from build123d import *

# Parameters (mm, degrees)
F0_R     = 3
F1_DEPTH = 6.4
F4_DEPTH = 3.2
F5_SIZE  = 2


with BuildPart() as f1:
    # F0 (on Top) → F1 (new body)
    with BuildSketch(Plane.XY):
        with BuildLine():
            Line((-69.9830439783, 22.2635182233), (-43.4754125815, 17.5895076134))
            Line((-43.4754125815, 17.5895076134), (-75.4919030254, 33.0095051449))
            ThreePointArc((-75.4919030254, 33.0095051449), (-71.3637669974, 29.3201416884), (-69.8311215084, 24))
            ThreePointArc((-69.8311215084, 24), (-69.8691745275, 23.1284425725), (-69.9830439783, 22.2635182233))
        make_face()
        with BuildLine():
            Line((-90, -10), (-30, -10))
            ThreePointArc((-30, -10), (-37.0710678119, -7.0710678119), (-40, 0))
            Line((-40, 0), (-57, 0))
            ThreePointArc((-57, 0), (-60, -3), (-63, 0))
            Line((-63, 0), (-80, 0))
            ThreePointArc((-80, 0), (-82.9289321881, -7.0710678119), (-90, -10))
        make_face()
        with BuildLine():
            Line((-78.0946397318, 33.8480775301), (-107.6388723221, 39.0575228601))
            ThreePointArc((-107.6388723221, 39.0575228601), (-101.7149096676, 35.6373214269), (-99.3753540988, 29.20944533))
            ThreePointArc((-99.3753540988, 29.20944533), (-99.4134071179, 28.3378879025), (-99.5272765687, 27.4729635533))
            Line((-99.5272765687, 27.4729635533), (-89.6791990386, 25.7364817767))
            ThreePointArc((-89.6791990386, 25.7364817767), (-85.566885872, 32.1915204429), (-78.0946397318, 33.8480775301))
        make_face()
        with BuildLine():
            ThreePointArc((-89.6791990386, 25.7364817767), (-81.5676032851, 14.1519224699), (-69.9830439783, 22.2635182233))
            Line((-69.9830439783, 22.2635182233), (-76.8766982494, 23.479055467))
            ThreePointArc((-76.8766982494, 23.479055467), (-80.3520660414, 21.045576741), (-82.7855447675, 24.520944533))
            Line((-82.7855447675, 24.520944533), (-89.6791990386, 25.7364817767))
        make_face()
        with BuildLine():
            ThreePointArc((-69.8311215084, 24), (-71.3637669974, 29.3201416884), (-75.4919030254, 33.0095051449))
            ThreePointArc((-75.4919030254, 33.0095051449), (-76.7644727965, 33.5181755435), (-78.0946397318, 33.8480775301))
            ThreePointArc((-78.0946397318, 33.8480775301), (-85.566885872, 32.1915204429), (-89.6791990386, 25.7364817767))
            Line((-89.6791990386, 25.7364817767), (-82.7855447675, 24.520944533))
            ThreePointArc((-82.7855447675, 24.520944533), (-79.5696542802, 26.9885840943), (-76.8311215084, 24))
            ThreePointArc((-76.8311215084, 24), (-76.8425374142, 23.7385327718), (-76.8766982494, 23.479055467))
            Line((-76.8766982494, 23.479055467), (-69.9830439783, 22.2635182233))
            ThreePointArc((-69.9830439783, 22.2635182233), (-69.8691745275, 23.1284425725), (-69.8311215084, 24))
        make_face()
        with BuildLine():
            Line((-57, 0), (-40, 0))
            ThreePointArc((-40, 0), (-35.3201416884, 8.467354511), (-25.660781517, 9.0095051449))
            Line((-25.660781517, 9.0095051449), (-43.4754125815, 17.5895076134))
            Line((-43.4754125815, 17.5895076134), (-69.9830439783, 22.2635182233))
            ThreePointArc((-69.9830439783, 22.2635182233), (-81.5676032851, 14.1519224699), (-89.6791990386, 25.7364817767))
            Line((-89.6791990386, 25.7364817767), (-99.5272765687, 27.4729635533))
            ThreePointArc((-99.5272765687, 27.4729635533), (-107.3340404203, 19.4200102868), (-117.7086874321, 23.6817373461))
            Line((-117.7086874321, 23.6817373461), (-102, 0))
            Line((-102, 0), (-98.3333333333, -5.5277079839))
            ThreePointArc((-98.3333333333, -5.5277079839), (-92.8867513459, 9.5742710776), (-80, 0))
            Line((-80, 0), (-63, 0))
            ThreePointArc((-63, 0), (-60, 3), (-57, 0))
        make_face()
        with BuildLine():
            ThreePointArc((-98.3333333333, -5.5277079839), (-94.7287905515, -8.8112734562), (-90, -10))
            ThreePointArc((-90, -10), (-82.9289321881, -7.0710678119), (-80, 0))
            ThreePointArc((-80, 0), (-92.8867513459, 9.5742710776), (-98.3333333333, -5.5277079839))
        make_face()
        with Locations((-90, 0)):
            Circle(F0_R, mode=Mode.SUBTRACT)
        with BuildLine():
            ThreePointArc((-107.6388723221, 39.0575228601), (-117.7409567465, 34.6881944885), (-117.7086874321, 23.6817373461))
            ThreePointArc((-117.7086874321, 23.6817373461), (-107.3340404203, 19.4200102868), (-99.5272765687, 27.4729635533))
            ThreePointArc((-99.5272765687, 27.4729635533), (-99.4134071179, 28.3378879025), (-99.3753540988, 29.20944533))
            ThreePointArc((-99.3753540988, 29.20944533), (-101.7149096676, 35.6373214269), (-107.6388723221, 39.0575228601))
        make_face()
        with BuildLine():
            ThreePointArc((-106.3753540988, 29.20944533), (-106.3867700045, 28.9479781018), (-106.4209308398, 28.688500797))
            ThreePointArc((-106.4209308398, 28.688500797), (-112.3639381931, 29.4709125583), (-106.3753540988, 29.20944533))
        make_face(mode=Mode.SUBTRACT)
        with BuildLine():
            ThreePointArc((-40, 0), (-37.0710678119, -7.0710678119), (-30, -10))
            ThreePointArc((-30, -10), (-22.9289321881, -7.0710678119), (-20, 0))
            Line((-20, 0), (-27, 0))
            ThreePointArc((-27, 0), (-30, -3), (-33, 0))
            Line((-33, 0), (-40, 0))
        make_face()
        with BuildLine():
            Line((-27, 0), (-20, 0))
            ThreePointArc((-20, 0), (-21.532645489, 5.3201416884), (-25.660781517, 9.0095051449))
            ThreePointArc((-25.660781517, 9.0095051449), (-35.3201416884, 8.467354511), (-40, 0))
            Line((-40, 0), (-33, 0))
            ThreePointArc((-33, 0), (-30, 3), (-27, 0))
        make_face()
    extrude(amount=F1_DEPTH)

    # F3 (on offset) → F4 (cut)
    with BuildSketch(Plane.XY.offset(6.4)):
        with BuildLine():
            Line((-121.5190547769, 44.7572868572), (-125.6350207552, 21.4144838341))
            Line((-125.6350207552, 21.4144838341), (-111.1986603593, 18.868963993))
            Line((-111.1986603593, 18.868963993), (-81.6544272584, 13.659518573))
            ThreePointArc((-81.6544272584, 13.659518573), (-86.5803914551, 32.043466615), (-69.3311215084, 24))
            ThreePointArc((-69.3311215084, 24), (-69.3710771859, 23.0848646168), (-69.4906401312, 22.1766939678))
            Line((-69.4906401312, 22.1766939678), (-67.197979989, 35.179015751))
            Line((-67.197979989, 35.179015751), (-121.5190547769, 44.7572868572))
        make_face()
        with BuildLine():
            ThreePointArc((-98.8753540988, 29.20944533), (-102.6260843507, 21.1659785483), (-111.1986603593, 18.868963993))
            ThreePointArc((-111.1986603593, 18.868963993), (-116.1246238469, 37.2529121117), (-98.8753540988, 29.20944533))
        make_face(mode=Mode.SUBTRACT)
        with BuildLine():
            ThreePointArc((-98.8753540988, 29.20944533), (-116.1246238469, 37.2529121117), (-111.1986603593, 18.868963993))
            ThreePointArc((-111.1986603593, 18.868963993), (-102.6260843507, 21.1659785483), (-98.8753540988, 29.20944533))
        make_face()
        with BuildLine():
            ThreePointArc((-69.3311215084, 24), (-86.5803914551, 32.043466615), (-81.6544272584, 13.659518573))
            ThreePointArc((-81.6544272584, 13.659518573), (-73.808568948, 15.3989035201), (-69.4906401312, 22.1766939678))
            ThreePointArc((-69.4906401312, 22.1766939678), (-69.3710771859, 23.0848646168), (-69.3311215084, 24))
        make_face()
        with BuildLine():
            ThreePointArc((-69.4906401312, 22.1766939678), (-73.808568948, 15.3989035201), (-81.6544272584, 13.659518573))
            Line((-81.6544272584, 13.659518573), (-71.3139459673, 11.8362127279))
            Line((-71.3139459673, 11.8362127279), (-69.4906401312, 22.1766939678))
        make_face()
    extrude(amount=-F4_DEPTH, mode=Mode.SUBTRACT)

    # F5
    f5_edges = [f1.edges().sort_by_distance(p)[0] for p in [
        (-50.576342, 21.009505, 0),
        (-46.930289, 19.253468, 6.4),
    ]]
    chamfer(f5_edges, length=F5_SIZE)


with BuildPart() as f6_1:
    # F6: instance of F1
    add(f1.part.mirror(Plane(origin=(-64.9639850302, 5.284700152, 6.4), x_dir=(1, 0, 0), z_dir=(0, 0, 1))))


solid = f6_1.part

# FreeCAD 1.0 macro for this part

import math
import FreeCAD as App
import Part
import Sketcher
from FreeCAD import Vector
Q = App.Units.Quantity


def edges_at(feature, points):
    """Names of the edges that pass closest to the given points."""
    edges = feature.Shape.Edges
    near = lambda p: min(range(len(edges)), key=lambda i: edges[i].distToShape(Part.Vertex(*p))[0])
    return sorted({f"Edge{near(p) + 1}" for p in points})


def add_polygon(sketch, points):
    """Adds a closed chain of lines whose ends are joined by coincident constraints."""
    first, n = sketch.GeometryCount, len(points)
    for a, b in zip(points, points[1:] + points[:1]):
        sketch.addGeometry(Part.LineSegment(App.Vector(*a, 0), App.Vector(*b, 0)), False)
    for i in range(n):
        sketch.addConstraint(Sketcher.Constraint("Coincident", first + i, 2, first + (i + 1) % n, 1))

doc = App.newDocument("Part")
params = doc.addObject("Spreadsheet::Sheet", "Params")
for row, (alias, value) in enumerate([
    ("sketch1_diameter", "6 mm"),
    ("sketch1_radius", "10 mm"),
    ("sketch1_width", "60 mm"),
    ("sketch1_length", "30 mm"),
    ("pad1_length", "6.4 mm"),
    ("sketch2_length", "30.000001 mm"),
    ("sketch2_length2", "10.5 mm"),
    ("pocket1_length", "3.2 mm"),
    ("chamfer_size", "2 mm"),
], start=1):
    params.set(f"A{row}", alias)
    params.set(f"B{row}", "=" + value)
    params.setAlias(f"B{row}", alias)

body = doc.addObject("PartDesign::Body", "Body")

# Sketch on XY plane
sketch1 = body.newObject("Sketcher::SketchObject", "Sketch")
sketch1.AttachmentSupport = (doc.getObject("XY_Plane"), [""])
sketch1.MapMode = "FlatFace"
sketch1.addGeometry([
    Part.LineSegment(Vector(-25.660782, 9.009505, 0), Vector(-43.475413, 17.589508, 0)),  # 0
    Part.LineSegment(Vector(-43.475413, 17.589508, 0), Vector(-75.491903, 33.009505, 0)),  # 1
    Part.ArcOfCircle(Part.Circle(Vector(-79.831122, 24, 0), Vector(0, 0, 1), 10), math.radians(64.283291), math.radians(80)),  # 2
    Part.LineSegment(Vector(-78.09464, 33.848078, 0), Vector(-107.638872, 39.057523, 0)),  # 3
    Part.ArcOfCircle(Part.Circle(Vector(-109.375354, 29.209445, 0), Vector(0, 0, 1), 10), math.radians(80), math.radians(213.55731)),  # 4
    Part.LineSegment(Vector(-117.708687, 23.681737, 0), Vector(-102, 0, 0)),  # 5
    Part.LineSegment(Vector(-102, 0, 0), Vector(-98.333333, -5.527708, 0)),  # 6
    Part.ArcOfCircle(Part.Circle(Vector(-90, 0, 0), Vector(0, 0, 1), 10), math.radians(-146.44269), math.radians(-90)),  # 7
    Part.LineSegment(Vector(-90, -10, 0), Vector(-30, -10, 0)),  # 8
    Part.ArcOfCircle(Part.Circle(Vector(-30, 0, 0), Vector(0, 0, 1), 10), math.radians(-90), math.radians(0)),  # 9
    Part.ArcOfCircle(Part.Circle(Vector(-30, 0, 0), Vector(0, 0, 1), 10), math.radians(0), math.radians(64.283291)),  # 10
    Part.Circle(Vector(-30, 0, 0), Vector(0, 0, 1), 3),  # 11
    Part.Circle(Vector(-90, 0, 0), Vector(0, 0, 1), 3),  # 12
    Part.Circle(Vector(-60, 0, 0), Vector(0, 0, 1), 3),  # 13
    Part.ArcOfCircle(Part.Circle(Vector(-109.375354, 29.209445, 0), Vector(0, 0, 1), 3), math.radians(0), math.radians(350)),  # 14
    Part.ArcOfCircle(Part.Circle(Vector(-109.375354, 29.209445, 0), Vector(0, 0, 1), 3), math.radians(-10), math.radians(0)),  # 15
    Part.ArcOfCircle(Part.Circle(Vector(-79.831122, 24, 0), Vector(0, 0, 1), 3), math.radians(0), math.radians(170)),  # 16
    Part.ArcOfCircle(Part.Circle(Vector(-79.831122, 24, 0), Vector(0, 0, 1), 3), math.radians(-10), math.radians(0)),  # 17
    Part.ArcOfCircle(Part.Circle(Vector(-79.831122, 24, 0), Vector(0, 0, 1), 3), math.radians(170), math.radians(350)),  # 18
], False)
sketch1.addConstraint([
    Sketcher.Constraint("Coincident", 0, 2, 1, 1),
    Sketcher.Constraint("Tangent", 1, 2, 2, 1),
    Sketcher.Constraint("Tangent", 2, 2, 3, 1),
    Sketcher.Constraint("Tangent", 3, 2, 4, 1),
    Sketcher.Constraint("Tangent", 4, 2, 5, 1),
    Sketcher.Constraint("Coincident", 5, 2, 6, 1),
    Sketcher.Constraint("Tangent", 6, 2, 7, 1),
    Sketcher.Constraint("Tangent", 7, 2, 8, 1),
    Sketcher.Constraint("Tangent", 8, 2, 9, 1),
    Sketcher.Constraint("Tangent", 9, 2, 10, 1),
    Sketcher.Constraint("Tangent", 10, 2, 0, 1),
    Sketcher.Constraint("Tangent", 14, 1, 15, 2),
    Sketcher.Constraint("Coincident", 15, 1, 14, 2),
    Sketcher.Constraint("Tangent", 16, 1, 17, 2),
    Sketcher.Constraint("Tangent", 17, 1, 18, 2),
    Sketcher.Constraint("Tangent", 18, 1, 16, 2),
    Sketcher.Constraint("Horizontal", 8),
    Sketcher.Constraint("Coincident", 11, 3, 9, 3),
    Sketcher.Constraint("Coincident", 12, 3, 7, 3),
    Sketcher.Constraint("Coincident", 14, 3, 4, 3),
    Sketcher.Constraint("Coincident", 16, 3, 2, 3),
    Sketcher.Constraint("Equal", 2, 4),
    Sketcher.Constraint("Equal", 4, 7),
    Sketcher.Constraint("Equal", 7, 9),
    Sketcher.Constraint("Equal", 9, 10),
    Sketcher.Constraint("Equal", 11, 12),
    Sketcher.Constraint("Equal", 12, 13),
    Sketcher.Constraint("Equal", 13, 14),
    Sketcher.Constraint("Equal", 15, 16),
    Sketcher.Constraint("PointOnObject", 7, 3, -1),
    Sketcher.Constraint("PointOnObject", 13, 3, -1),
    Sketcher.Constraint("PointOnObject", 5, 2, -1),
    Sketcher.Constraint("PointOnObject", 9, 2, -1),
    Sketcher.Constraint("Parallel", 0, 1),
    Sketcher.Constraint("Parallel", 5, 6),
    Sketcher.Constraint("Horizontal", 15, 3, 14, 1),
    Sketcher.Constraint("Horizontal", 18, 3, 16, 1),
    Sketcher.Constraint("Diameter", 11, 6.0),
    Sketcher.Constraint("Radius", 2, 10.0),
    Sketcher.Constraint("DistanceX", 8, 1, 8, 2, 60.0),
    Sketcher.Constraint("Angle", 3, Q("170 deg")),
    Sketcher.Constraint("Distance", 3, 30.0),
    Sketcher.Constraint("DistanceY", -1, 1, 2, 3, 24.0),
    Sketcher.Constraint("DistanceX", 7, 3, -1, 1, 90.0),
    Sketcher.Constraint("DistanceX", 13, 3, -1, 1, 60.0),
    Sketcher.Constraint("DistanceX", 5, 2, -1, 1, 102.0),
    Sketcher.Constraint("DistanceY", -1, 1, 15, 1, 28.688501),
    Sketcher.Constraint("DistanceX", 17, 1, -1, 1, 76.876698),
    Sketcher.Constraint("Distance", 0, 19.773152),
    Sketcher.Constraint("DistanceX", 18, 1, -1, 1, 82.785545),
])
sketch1.setExpression("Constraints[37]", "Params.sketch1_diameter")
sketch1.setExpression("Constraints[38]", "Params.sketch1_radius")
sketch1.setExpression("Constraints[39]", "Params.sketch1_width")
sketch1.setExpression("Constraints[41]", "Params.sketch1_length")
pad1 = body.newObject("PartDesign::Pad", "Pad")
pad1.Profile = sketch1
pad1.setExpression("Length", "Params.pad1_length")

# Sketch on XY plane
sketch2 = body.newObject("Sketcher::SketchObject", "Sketch001")
sketch2.AttachmentSupport = (doc.getObject("XY_Plane"), [""])
sketch2.MapMode = "FlatFace"
sketch2.AttachmentOffset = App.Placement(Vector(0, 0, 6.4), App.Rotation())
add_polygon(sketch2, [(-69.49064, 22.176694), (-67.19798, 35.179016), (-121.519055, 44.757287), (-125.635021, 21.414484), (-111.19866, 18.868964), (-81.654427, 13.659519), (-71.313946, 11.836213)])  # lines 0-6
sketch2.addConstraint([
    Sketcher.Constraint("Perpendicular", 0, 1),
    Sketcher.Constraint("Perpendicular", 1, 2),
    Sketcher.Constraint("Perpendicular", 2, 3),
    Sketcher.Constraint("Parallel", 3, 4),
    Sketcher.Constraint("Parallel", 4, 5),
    Sketcher.Constraint("Perpendicular", 5, 6),
    Sketcher.Constraint("Equal", 5, 6),
    Sketcher.Constraint("Angle", 0, Q("80 deg")),
    Sketcher.Constraint("Distance", 4, 30.000001),
    Sketcher.Constraint("Distance", 5, 10.5),
    Sketcher.Constraint("DistanceX", 0, 2, -1, 1, 67.19798),
    Sketcher.Constraint("DistanceX", 2, 2, -1, 1, 125.635021),
    Sketcher.Constraint("DistanceX", 3, 2, -1, 1, 111.19866),
    Sketcher.Constraint("DistanceY", -1, 1, 4, 2, 13.659519),
])
sketch2.setExpression("Constraints[15]", "Params.sketch2_length")
sketch2.setExpression("Constraints[16]", "Params.sketch2_length2")
pocket1 = body.newObject("PartDesign::Pocket", "Pocket")
pocket1.Profile = sketch2
pocket1.setExpression("Length", "Params.pocket1_length")
doc.recompute()

chamfer = body.newObject("PartDesign::Chamfer", "Chamfer")
chamfer.Base = (pocket1, edges_at(pocket1, [(-59.484, 25.3, 0), (-55.838, 23.543, 6.4)]))
chamfer.setExpression("Size", "Params.chamfer_size")
body2 = doc.addObject("PartDesign::Body", "Body001")
doc.recompute()

mirroring = doc.addObject("Part::Mirroring", "Mirroring")
mirroring.Source = body
mirroring.Base = Vector(-64.963985, 5.2847, 6.4)
mirroring.Normal = Vector(0, 0, 1)
body2.BaseFeature = mirroring
doc.recompute()
body.Visibility = False
mirroring.Visibility = False

doc.recompute()
